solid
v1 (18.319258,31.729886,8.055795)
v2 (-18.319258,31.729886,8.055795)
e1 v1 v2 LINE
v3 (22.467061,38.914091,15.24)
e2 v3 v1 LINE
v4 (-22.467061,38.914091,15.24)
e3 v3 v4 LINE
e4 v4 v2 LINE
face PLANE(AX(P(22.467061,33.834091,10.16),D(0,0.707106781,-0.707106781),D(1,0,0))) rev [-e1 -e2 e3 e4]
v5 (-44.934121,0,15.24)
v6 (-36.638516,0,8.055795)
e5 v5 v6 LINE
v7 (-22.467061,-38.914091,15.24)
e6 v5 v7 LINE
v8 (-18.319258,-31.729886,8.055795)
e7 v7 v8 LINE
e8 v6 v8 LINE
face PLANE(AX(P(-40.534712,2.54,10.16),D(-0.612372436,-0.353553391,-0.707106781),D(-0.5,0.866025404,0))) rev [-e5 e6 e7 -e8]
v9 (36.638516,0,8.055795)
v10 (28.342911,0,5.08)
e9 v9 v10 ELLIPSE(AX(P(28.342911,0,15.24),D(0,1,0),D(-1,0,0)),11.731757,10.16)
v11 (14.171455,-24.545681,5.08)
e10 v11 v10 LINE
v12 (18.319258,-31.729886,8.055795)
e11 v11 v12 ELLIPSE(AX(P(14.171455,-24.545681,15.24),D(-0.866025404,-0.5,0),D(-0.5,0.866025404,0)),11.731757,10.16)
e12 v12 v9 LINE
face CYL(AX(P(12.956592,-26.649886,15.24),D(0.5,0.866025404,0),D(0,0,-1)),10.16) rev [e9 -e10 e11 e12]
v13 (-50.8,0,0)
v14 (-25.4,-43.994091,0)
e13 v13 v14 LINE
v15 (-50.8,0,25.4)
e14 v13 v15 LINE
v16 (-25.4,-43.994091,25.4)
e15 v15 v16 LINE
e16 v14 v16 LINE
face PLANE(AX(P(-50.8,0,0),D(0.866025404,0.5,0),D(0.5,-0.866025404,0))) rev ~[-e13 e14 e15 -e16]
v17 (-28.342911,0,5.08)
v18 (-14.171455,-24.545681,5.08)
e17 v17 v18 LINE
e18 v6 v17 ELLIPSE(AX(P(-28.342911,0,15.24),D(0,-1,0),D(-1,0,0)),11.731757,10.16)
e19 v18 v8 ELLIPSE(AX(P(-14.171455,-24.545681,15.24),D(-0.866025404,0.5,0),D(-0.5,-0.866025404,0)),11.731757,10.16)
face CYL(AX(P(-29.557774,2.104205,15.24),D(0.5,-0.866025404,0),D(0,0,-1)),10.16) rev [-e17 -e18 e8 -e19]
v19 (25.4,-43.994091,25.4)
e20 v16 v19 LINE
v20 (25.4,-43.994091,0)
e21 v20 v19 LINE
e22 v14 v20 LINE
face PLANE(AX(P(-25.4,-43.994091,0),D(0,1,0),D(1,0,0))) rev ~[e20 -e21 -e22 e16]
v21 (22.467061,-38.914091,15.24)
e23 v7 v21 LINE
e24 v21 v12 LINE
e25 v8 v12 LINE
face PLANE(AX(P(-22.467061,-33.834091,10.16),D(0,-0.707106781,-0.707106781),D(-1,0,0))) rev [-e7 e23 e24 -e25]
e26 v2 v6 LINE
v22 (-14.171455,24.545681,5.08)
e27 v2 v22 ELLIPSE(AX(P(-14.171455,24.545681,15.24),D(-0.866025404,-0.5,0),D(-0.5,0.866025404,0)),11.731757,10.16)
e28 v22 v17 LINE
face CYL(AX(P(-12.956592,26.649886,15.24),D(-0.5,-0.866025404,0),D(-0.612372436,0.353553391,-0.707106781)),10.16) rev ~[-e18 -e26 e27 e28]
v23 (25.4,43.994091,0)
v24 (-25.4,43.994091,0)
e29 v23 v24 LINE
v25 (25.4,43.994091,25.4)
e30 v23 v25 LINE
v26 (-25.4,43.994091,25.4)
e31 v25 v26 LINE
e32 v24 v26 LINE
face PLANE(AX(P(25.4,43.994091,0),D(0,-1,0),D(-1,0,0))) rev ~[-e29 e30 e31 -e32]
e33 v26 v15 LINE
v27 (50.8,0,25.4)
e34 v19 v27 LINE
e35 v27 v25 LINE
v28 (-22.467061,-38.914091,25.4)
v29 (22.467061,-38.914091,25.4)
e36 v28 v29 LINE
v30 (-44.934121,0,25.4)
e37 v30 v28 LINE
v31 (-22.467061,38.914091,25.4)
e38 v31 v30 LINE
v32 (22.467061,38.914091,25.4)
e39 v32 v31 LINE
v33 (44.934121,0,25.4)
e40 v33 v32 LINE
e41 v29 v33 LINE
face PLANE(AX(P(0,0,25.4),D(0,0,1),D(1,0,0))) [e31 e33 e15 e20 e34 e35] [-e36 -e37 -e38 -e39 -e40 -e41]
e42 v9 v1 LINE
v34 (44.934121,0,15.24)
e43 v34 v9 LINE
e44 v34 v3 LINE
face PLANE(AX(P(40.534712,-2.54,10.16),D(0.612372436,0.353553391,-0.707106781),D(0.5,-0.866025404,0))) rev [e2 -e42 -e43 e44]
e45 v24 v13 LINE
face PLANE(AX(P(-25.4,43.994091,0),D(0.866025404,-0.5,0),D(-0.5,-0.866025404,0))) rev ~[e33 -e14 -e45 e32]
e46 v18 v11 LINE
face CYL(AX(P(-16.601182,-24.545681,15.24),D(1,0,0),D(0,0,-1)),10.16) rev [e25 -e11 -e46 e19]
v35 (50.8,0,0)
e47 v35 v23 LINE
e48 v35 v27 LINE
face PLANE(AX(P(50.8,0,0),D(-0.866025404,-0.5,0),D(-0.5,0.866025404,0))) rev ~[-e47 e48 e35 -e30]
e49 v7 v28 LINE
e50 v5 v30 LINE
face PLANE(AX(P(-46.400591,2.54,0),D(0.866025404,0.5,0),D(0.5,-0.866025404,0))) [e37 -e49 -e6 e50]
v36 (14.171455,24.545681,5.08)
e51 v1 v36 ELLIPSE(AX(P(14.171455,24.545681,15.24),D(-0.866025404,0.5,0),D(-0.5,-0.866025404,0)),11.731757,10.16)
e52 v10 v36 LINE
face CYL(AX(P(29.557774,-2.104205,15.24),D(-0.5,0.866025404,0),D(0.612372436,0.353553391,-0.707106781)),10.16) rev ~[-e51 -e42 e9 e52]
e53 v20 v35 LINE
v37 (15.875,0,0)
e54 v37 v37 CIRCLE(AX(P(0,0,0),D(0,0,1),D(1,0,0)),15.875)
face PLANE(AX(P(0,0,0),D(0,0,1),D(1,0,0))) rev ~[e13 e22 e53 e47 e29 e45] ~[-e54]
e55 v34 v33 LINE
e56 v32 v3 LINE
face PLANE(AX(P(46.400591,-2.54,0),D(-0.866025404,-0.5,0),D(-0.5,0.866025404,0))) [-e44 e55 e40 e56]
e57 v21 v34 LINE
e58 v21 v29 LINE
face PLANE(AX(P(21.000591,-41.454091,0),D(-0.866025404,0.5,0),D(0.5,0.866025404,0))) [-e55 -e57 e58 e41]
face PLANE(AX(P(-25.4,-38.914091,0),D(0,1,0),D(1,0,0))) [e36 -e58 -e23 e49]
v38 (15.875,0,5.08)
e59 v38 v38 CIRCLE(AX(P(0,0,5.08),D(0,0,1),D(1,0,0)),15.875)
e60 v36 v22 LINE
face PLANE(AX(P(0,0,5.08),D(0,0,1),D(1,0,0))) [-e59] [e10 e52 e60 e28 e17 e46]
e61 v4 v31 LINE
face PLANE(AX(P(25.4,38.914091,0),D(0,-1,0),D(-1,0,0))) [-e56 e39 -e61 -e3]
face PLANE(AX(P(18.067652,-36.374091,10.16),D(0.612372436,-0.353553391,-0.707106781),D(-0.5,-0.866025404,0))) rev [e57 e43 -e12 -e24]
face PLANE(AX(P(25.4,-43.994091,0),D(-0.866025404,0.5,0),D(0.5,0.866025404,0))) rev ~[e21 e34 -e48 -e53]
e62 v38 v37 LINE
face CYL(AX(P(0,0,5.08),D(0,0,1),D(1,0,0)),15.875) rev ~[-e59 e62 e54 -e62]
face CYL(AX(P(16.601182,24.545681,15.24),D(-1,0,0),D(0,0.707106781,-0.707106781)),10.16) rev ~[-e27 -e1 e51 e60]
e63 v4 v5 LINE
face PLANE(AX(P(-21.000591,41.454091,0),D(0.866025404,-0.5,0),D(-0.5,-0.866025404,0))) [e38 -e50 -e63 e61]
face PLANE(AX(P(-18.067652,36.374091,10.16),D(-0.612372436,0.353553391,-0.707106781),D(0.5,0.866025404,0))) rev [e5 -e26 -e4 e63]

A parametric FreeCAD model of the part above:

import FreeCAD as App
import Part
import Sketcher

V = App.Vector
Q = App.Units.Quantity


def edges_at(feature, points):
    """Names of the edges that pass closest to the given points."""
    edges = feature.Shape.Edges
    near = lambda p: min(range(len(edges)), key=lambda i: edges[i].distToShape(Part.Vertex(*p))[0])
    return sorted({f"Edge{near(p) + 1}" for p in points})


def faces_at(feature, points):
    """Names of the faces that lie closest to the given points."""
    faces = feature.Shape.Faces
    near = lambda p: min(range(len(faces)), key=lambda i: faces[i].distToShape(Part.Vertex(*p))[0])
    return sorted({f"Face{near(p) + 1}" for p in points})

doc = App.newDocument("Part")
body = doc.addObject("PartDesign::Body", "Body")

# Sketch on XY plane
sketch1 = body.newObject("Sketcher::SketchObject", "Sketch")
sketch1.AttachmentSupport = (doc.getObject("XY_Plane"), [""])
sketch1.MapMode = "FlatFace"
sketch1.addGeometry([
    Part.LineSegment(V(25.4, 43.994091, 0), V(-25.4, 43.994091, 0)),  # 0
    Part.LineSegment(V(-25.4, 43.994091, 0), V(-50.8, 0, 0)),  # 1
    Part.LineSegment(V(-50.8, 0, 0), V(-25.4, -43.994091, 0)),  # 2
    Part.LineSegment(V(-25.4, -43.994091, 0), V(25.4, -43.994091, 0)),  # 3
    Part.LineSegment(V(25.4, -43.994091, 0), V(50.8, 0, 0)),  # 4
    Part.LineSegment(V(50.8, 0, 0), V(25.4, 43.994091, 0)),  # 5
], False)
sketch1.addConstraint([
    Sketcher.Constraint("Coincident", 0, 2, 1, 1),
    Sketcher.Constraint("Coincident", 1, 2, 2, 1),
    Sketcher.Constraint("Coincident", 2, 2, 3, 1),
    Sketcher.Constraint("Coincident", 3, 2, 4, 1),
    Sketcher.Constraint("Coincident", 4, 2, 5, 1),
    Sketcher.Constraint("Coincident", 5, 2, 0, 1),
    Sketcher.Constraint("Horizontal", 0),
    Sketcher.Constraint("Horizontal", 3),
    Sketcher.Constraint("Symmetric", 0, 2, 3, 2, -1, 1),
    Sketcher.Constraint("Symmetric", 1, 2, 4, 2, -1, 1),
    Sketcher.Constraint("PointOnObject", 1, 2, -1),
    Sketcher.Constraint("Parallel", 2, 5),
    Sketcher.Constraint("Vertical", 0, 2, 2, 2),
    Sketcher.Constraint("DistanceX", 0, 2, 0, 1, Q("2 in")),
    Sketcher.Constraint("Distance", 1, Q("2 in")),
    Sketcher.Constraint("DistanceX", 1, 2, -1, 1, Q("2 in")),
])
pad1 = body.newObject("PartDesign::Pad", "Pad")
pad1.Profile = sketch1
pad1.Length = Q("1 in")
doc.recompute()

thickness = body.newObject("PartDesign::Thickness", "Thickness")
thickness.Base = (pad1, faces_at(pad1, [(0, 0, 25.4)]))
thickness.Value = Q("0.2 in")
thickness.Reversed = True
thickness.Join = "Arc"
doc.recompute()

chamfer = body.newObject("PartDesign::Chamfer", "Chamfer")
chamfer.Base = (thickness, edges_at(thickness, [
    (0, 38.914, 5.08),
    (33.701, 19.457, 5.08),
    (-33.701, 19.457, 5.08),
    (-33.701, -19.457, 5.08),
    (0, -38.914, 5.08),
    (33.701, -19.457, 5.08),
]))
chamfer.Size = Q("0.4 in")
doc.recompute()

fillet = body.newObject("PartDesign::Fillet", "Fillet")
fillet.Base = (chamfer, edges_at(chamfer, [
    (0, 28.754, 5.08),
    (24.902, 14.377, 5.08),
    (-24.902, 14.377, 5.08),
    (24.902, -14.377, 5.08),
    (-24.902, -14.377, 5.08),
    (0, -28.754, 5.08),
]))
fillet.Radius = Q("0.4 in")

# Sketch on XY plane
sketch2 = body.newObject("Sketcher::SketchObject", "Sketch001")
sketch2.AttachmentSupport = (doc.getObject("XY_Plane"), [""])
sketch2.MapMode = "FlatFace"
sketch2.AttachmentOffset = App.Placement(V(0, 0, 0.2 * 25.4), App.Rotation())
sketch2.addGeometry(Part.Circle(V(0, 0, 0), V(0, 0, 1), 15.875), False)
sketch2.addConstraint([
    Sketcher.Constraint("Coincident", 0, 3, -1, 1),
    Sketcher.Constraint("Diameter", 0, Q("1.25 in")),
])
pocket1 = body.newObject("PartDesign::Pocket", "Pocket")
pocket1.Profile = sketch2
pocket1.Length = Q("1 in")

doc.recompute()
